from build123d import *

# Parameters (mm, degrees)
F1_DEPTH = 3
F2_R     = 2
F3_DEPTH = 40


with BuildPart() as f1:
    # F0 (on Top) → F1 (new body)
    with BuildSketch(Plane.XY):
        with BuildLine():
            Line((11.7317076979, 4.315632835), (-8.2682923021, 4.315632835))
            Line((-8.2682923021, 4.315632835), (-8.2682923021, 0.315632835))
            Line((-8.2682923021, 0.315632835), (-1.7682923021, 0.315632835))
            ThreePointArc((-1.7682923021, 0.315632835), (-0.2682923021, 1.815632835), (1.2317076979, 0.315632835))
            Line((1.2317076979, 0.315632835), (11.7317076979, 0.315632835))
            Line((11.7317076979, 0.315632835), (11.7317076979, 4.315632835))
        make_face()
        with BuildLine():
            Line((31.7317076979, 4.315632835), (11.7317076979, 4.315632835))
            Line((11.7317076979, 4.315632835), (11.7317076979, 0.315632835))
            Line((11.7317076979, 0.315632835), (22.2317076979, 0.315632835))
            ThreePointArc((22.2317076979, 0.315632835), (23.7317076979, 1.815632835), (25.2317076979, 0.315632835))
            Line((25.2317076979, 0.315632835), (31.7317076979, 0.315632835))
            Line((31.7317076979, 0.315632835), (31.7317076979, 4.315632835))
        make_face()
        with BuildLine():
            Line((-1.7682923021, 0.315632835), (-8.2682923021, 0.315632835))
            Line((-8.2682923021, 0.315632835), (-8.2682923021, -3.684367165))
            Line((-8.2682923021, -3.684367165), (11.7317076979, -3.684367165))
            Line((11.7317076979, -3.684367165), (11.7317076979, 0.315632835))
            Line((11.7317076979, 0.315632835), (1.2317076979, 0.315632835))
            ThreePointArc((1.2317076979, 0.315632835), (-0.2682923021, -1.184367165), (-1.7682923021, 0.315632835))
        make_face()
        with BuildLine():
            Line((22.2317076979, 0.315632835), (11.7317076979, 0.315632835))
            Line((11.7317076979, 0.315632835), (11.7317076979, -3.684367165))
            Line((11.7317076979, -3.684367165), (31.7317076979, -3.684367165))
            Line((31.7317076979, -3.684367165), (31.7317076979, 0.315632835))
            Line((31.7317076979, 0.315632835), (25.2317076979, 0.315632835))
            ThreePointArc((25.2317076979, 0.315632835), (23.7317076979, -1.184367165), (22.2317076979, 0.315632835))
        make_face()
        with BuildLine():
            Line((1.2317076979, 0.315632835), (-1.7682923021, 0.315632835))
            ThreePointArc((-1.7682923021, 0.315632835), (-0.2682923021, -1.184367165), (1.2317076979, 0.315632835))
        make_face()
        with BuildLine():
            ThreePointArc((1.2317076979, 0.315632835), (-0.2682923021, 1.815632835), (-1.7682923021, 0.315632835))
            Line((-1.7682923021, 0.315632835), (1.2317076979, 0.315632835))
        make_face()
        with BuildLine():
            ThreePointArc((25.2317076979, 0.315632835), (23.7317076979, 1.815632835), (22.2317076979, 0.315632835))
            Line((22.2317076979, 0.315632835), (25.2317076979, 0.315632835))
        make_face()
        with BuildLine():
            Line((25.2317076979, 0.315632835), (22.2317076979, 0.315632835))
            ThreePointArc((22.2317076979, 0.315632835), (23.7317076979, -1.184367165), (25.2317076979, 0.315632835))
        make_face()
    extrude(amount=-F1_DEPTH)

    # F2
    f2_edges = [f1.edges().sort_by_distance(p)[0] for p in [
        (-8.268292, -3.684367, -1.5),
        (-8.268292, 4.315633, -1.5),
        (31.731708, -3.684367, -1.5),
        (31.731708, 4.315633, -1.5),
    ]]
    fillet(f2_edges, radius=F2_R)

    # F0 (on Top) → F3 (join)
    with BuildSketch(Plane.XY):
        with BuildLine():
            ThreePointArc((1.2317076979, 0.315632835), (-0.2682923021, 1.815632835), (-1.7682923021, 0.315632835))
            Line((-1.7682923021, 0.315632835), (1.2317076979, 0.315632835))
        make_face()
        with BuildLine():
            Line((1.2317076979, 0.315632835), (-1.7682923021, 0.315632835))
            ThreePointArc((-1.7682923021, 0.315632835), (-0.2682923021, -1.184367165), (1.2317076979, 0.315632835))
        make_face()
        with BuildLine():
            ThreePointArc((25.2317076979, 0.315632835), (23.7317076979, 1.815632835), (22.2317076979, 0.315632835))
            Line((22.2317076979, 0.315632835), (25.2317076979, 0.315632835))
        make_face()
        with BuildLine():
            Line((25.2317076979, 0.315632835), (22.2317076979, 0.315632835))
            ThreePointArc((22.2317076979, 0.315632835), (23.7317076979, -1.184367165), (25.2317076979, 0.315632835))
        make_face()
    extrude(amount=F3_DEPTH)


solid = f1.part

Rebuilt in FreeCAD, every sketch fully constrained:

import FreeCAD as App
import Part
import Sketcher
from FreeCAD import Vector
Q = App.Units.Quantity


def edges_at(feature, points):
    """Names of the edges that pass closest to the given points."""
    edges = feature.Shape.Edges
    near = lambda p: min(range(len(edges)), key=lambda i: edges[i].distToShape(Part.Vertex(*p))[0])
    return sorted({f"Edge{near(p) + 1}" for p in points})

doc = App.newDocument("Part")
body = doc.addObject("PartDesign::Body", "Body")

sketch1 = body.newObject("Sketcher::SketchObject", "Sketch")
sketch1.AttachmentSupport = (doc.getObject("XY_Plane"), [""])
sketch1.MapMode = "FlatFace"
sketch1.addGeometry([
    Part.LineSegment(Vector(-8, 4, 0), Vector(-8, -4, 0)),
    Part.LineSegment(Vector(-8, -4, 0), Vector(32, -4, 0)),
    Part.LineSegment(Vector(32, -4, 0), Vector(32, 4, 0)),
    Part.LineSegment(Vector(32, 4, 0), Vector(-8, 4, 0)),
], False)
sketch1.addConstraint([
    Sketcher.Constraint("Coincident", 0, 2, 1, 1),
    Sketcher.Constraint("Coincident", 1, 2, 2, 1),
    Sketcher.Constraint("Coincident", 2, 2, 3, 1),
    Sketcher.Constraint("Coincident", 3, 2, 0, 1),
    Sketcher.Constraint("Vertical", 0),
    Sketcher.Constraint("Horizontal", 1),
    Sketcher.Constraint("Vertical", 2),
    Sketcher.Constraint("Horizontal", 3),
    Sketcher.Constraint("DistanceX", 1, 1, 1, 2, Q("40 mm")),
    Sketcher.Constraint("DistanceY", 0, 2, 0, 1, Q("8 mm")),
    Sketcher.Constraint("DistanceX", 0, 2, -1, 1, Q("8.268292 mm")),
    Sketcher.Constraint("DistanceY", 0, 2, -1, 1, Q("3.684367 mm")),
])
pad1 = body.newObject("PartDesign::Pad", "Pad")
pad1.Profile = sketch1
pad1.Length = 3
pad1.Reversed = True
doc.recompute()

fillet = body.newObject("PartDesign::Fillet", "Fillet")
fillet.Base = (pad1, edges_at(pad1, [
    (-8.268, -3.684, -1.5),
    (-8.268, 4.316, -1.5),
    (31.732, -3.684, -1.5),
    (31.732, 4.316, -1.5),
]))
fillet.Radius = 2

sketch2 = body.newObject("Sketcher::SketchObject", "Sketch001")
sketch2.AttachmentSupport = (doc.getObject("XY_Plane"), [""])
sketch2.MapMode = "FlatFace"
sketch2.addGeometry([
    Part.Circle(Vector(-0.3, 0.3, 0), Vector(0, 0, 1), 1.5),
    Part.Circle(Vector(23.7, 0.3, 0), Vector(0, 0, 1), 1.5),
], False)
sketch2.addConstraint([
    Sketcher.Constraint("Equal", 0, 1),
    Sketcher.Constraint("Horizontal", 0, 3, 1, 3),
    Sketcher.Constraint("Diameter", 0, Q("3 mm")),
    Sketcher.Constraint("DistanceX", 0, 3, 1, 3, Q("24 mm")),
    Sketcher.Constraint("DistanceX", 0, 3, -1, 1, Q("0.268292 mm")),
    Sketcher.Constraint("DistanceY", -1, 1, 0, 3, Q("0.315633 mm")),
])
pad2 = body.newObject("PartDesign::Pad", "Pad001")
pad2.Profile = sketch2
pad2.Length = 40

doc.recompute()
